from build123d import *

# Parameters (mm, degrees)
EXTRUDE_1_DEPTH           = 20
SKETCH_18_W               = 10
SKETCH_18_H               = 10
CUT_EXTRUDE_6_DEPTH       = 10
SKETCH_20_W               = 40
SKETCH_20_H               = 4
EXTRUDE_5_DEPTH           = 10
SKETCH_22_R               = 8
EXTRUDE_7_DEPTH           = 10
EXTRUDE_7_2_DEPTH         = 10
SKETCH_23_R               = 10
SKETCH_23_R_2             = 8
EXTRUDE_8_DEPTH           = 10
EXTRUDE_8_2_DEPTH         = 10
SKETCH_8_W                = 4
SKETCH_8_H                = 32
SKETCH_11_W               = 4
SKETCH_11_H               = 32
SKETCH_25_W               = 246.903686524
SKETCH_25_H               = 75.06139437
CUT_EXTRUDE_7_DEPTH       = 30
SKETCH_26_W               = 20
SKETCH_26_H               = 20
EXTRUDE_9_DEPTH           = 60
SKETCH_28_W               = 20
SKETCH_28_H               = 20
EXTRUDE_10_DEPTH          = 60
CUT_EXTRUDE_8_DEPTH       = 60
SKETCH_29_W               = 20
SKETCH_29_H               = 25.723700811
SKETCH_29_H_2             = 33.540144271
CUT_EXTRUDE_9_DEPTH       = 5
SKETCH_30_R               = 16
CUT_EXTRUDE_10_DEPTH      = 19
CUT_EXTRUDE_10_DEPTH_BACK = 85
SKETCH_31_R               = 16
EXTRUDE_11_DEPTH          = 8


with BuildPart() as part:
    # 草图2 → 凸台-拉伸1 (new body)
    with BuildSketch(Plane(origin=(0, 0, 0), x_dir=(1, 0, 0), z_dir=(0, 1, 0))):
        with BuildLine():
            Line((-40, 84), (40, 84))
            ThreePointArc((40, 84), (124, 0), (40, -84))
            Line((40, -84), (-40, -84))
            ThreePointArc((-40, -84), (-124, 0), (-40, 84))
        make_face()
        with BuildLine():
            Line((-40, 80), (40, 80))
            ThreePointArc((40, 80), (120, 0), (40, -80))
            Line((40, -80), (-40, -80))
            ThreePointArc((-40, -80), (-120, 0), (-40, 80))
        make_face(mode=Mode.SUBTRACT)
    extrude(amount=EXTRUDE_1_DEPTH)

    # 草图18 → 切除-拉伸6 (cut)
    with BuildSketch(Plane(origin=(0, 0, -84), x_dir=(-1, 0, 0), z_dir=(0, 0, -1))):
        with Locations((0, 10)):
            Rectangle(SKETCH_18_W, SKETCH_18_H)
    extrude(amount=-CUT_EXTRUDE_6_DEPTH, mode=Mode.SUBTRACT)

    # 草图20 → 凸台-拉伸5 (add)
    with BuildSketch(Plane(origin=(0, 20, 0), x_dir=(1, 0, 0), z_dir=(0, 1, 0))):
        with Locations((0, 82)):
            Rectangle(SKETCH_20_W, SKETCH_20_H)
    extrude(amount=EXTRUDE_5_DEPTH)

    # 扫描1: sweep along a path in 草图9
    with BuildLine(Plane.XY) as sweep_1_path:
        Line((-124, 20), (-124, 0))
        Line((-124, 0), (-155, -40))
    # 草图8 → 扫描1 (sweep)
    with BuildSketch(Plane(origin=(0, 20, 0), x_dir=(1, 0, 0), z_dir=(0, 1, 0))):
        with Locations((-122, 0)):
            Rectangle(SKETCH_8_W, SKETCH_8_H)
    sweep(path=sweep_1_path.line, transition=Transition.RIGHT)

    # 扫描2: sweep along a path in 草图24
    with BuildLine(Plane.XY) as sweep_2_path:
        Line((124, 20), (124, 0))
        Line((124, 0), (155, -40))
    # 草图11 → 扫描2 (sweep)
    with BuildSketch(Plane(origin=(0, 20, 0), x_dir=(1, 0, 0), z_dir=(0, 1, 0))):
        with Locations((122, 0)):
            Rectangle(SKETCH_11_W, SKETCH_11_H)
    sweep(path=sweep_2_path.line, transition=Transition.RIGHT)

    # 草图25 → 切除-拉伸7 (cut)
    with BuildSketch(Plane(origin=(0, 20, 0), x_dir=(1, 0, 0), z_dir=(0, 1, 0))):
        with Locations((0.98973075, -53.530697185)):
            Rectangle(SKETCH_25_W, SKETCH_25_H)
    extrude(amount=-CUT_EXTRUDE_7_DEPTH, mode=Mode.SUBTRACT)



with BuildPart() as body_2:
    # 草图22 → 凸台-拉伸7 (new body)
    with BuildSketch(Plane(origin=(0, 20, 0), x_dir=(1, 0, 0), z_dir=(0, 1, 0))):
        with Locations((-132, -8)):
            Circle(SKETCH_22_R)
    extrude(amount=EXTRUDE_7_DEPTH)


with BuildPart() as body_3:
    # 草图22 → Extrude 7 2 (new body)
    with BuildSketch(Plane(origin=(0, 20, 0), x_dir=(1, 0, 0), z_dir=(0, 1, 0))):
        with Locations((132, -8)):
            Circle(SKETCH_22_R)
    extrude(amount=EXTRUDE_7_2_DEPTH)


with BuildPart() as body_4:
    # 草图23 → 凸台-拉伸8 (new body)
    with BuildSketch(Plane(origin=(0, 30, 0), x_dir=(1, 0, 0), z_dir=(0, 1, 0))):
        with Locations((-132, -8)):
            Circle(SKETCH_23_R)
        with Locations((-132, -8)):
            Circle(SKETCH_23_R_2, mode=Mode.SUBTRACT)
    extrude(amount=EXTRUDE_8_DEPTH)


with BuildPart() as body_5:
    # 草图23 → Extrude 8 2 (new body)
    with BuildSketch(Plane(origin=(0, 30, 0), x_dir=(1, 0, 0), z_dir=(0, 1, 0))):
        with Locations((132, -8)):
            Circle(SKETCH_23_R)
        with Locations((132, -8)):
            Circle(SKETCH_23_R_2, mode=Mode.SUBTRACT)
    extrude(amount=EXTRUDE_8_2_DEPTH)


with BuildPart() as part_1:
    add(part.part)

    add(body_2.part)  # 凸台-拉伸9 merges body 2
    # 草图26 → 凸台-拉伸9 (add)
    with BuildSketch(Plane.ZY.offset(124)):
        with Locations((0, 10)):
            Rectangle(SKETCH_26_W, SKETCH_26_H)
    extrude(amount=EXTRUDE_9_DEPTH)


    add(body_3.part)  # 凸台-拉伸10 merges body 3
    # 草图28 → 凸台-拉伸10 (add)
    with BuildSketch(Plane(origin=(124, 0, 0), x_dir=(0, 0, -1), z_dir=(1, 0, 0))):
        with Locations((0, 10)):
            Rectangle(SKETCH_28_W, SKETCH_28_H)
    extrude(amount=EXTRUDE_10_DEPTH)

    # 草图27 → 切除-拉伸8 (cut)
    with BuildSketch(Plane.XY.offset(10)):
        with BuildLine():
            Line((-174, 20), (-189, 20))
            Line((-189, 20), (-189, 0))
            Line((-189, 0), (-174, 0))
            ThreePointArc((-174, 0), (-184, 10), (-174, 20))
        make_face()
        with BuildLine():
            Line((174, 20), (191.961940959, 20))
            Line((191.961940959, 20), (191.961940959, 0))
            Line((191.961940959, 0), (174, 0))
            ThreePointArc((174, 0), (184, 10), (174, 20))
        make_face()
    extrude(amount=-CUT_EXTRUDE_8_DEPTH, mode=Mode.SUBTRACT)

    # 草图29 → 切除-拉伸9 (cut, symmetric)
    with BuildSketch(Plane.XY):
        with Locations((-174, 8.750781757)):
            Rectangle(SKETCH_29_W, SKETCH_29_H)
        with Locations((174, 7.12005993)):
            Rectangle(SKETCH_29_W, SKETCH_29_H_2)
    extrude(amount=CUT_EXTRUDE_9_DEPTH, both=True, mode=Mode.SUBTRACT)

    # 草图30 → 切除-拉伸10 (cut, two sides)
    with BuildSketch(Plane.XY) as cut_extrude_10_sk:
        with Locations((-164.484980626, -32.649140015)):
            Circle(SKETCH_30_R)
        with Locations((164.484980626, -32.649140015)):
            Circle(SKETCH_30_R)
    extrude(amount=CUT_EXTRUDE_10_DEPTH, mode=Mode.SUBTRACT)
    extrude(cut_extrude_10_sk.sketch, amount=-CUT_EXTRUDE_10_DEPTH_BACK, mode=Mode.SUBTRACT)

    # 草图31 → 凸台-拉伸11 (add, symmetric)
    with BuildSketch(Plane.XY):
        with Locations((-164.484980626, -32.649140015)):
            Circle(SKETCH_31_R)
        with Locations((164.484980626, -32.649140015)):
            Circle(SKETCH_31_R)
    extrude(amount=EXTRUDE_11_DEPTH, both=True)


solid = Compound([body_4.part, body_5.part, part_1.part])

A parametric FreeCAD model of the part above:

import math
import FreeCAD as App
import Part
import Sketcher
Q = App.Units.Quantity

doc = App.newDocument("Part")
body = doc.addObject("PartDesign::Body", "Body")

sketch1 = doc.addObject("Sketcher::SketchObject", "Sketch")
body.addObject(sketch1)
sketch1.AttachmentSupport = (doc.XZ_Plane, [""])
sketch1.MapMode = "FlatFace"
sketch1.addGeometry(Part.LineSegment(App.Vector(40, -84, 0), App.Vector(-40, -84, 0)), False)
sketch1.addGeometry(Part.ArcOfCircle(Part.Circle(App.Vector(-40, 0, 0), App.Vector(0, 0, 1), 84), math.radians(90), math.radians(270)), False)
sketch1.addGeometry(Part.LineSegment(App.Vector(-40, 84, 0), App.Vector(40, 84, 0)), False)
sketch1.addGeometry(Part.ArcOfCircle(Part.Circle(App.Vector(40, 0, 0), App.Vector(0, 0, 1), 84), math.radians(-90), math.radians(90)), False)
sketch1.addGeometry(Part.LineSegment(App.Vector(-40, -80, 0), App.Vector(40, -80, 0)), False)
sketch1.addGeometry(Part.ArcOfCircle(Part.Circle(App.Vector(40, 0, 0), App.Vector(0, 0, 1), 80), math.radians(-90), math.radians(90)), False)
sketch1.addGeometry(Part.LineSegment(App.Vector(40, 80, 0), App.Vector(-40, 80, 0)), False)
sketch1.addGeometry(Part.ArcOfCircle(Part.Circle(App.Vector(-40, 0, 0), App.Vector(0, 0, 1), 80), math.radians(90), math.radians(270)), False)
sketch1.addConstraint(Sketcher.Constraint("Tangent", 0, 2, 1, 2))
sketch1.addConstraint(Sketcher.Constraint("Tangent", 1, 1, 2, 1))
sketch1.addConstraint(Sketcher.Constraint("Tangent", 2, 2, 3, 2))
sketch1.addConstraint(Sketcher.Constraint("Tangent", 3, 1, 0, 1))
sketch1.addConstraint(Sketcher.Constraint("Tangent", 4, 2, 5, 1))
sketch1.addConstraint(Sketcher.Constraint("Tangent", 5, 2, 6, 1))
sketch1.addConstraint(Sketcher.Constraint("Tangent", 6, 2, 7, 1))
sketch1.addConstraint(Sketcher.Constraint("Tangent", 7, 2, 4, 1))
sketch1.addConstraint(Sketcher.Constraint("Horizontal", 0))
sketch1.addConstraint(Sketcher.Constraint("Horizontal", 2))
sketch1.addConstraint(Sketcher.Constraint("Horizontal", 4))
sketch1.addConstraint(Sketcher.Constraint("Horizontal", 6))
sketch1.addConstraint(Sketcher.Constraint("Coincident", 5, 3, 3, 3))
sketch1.addConstraint(Sketcher.Constraint("Symmetric", 1, 3, 3, 3, -1, 1))
sketch1.addConstraint(Sketcher.Constraint("Vertical", 7, 3, 0, 2))
sketch1.addConstraint(Sketcher.Constraint("Radius", 1, Q("84 mm")))
sketch1.addConstraint(Sketcher.Constraint("Radius", 5, Q("80 mm")))
sketch1.addConstraint(Sketcher.Constraint("DistanceX", 0, 2, 0, 1, Q("80 mm")))
pad1 = doc.addObject("PartDesign::Pad", "Pad")
body.addObject(pad1)
pad1.Profile = sketch1
pad1.Length = 20
pad1.Reversed = True

sketch2 = doc.addObject("Sketcher::SketchObject", "Sketch001")
body.addObject(sketch2)
sketch2.AttachmentSupport = (doc.XY_Plane, [""])
sketch2.MapMode = "FlatFace"
sketch2.AttachmentOffset = App.Placement(App.Vector(0, 0, -84), App.Rotation())
sketch2.addGeometry(Part.LineSegment(App.Vector(5, 15, 0), App.Vector(5, 5, 0)), False)
sketch2.addGeometry(Part.LineSegment(App.Vector(5, 5, 0), App.Vector(-5, 5, 0)), False)
sketch2.addGeometry(Part.LineSegment(App.Vector(-5, 5, 0), App.Vector(-5, 15, 0)), False)
sketch2.addGeometry(Part.LineSegment(App.Vector(-5, 15, 0), App.Vector(5, 15, 0)), False)
sketch2.addConstraint(Sketcher.Constraint("Coincident", 0, 2, 1, 1))
sketch2.addConstraint(Sketcher.Constraint("Coincident", 1, 2, 2, 1))
sketch2.addConstraint(Sketcher.Constraint("Coincident", 2, 2, 3, 1))
sketch2.addConstraint(Sketcher.Constraint("Coincident", 3, 2, 0, 1))
sketch2.addConstraint(Sketcher.Constraint("Vertical", 0))
sketch2.addConstraint(Sketcher.Constraint("Horizontal", 1))
sketch2.addConstraint(Sketcher.Constraint("Vertical", 2))
sketch2.addConstraint(Sketcher.Constraint("Horizontal", 3))
sketch2.addConstraint(Sketcher.Constraint("Equal", 3, 0))
sketch2.addConstraint(Sketcher.Constraint("DistanceX", 1, 2, 1, 1, Q("10 mm")))
sketch2.addConstraint(Sketcher.Constraint("DistanceX", -1, 1, 0, 2, Q("5 mm")))
sketch2.addConstraint(Sketcher.Constraint("DistanceY", -1, 1, 0, 2, Q("5 mm")))
pocket1 = doc.addObject("PartDesign::Pocket", "Pocket")
body.addObject(pocket1)
pocket1.Profile = sketch2
pocket1.Length = 10
pocket1.Reversed = True

sketch3 = doc.addObject("Sketcher::SketchObject", "Sketch002")
body.addObject(sketch3)
sketch3.AttachmentSupport = (doc.XZ_Plane, [""])
sketch3.MapMode = "FlatFace"
sketch3.AttachmentOffset = App.Placement(App.Vector(0, 0, -20), App.Rotation())
sketch3.addGeometry(Part.LineSegment(App.Vector(-20, -84, 0), App.Vector(-20, -80, 0)), False)
sketch3.addGeometry(Part.LineSegment(App.Vector(-20, -80, 0), App.Vector(20, -80, 0)), False)
sketch3.addGeometry(Part.LineSegment(App.Vector(20, -80, 0), App.Vector(20, -84, 0)), False)
sketch3.addGeometry(Part.LineSegment(App.Vector(20, -84, 0), App.Vector(-20, -84, 0)), False)
sketch3.addConstraint(Sketcher.Constraint("Coincident", 0, 2, 1, 1))
sketch3.addConstraint(Sketcher.Constraint("Coincident", 1, 2, 2, 1))
sketch3.addConstraint(Sketcher.Constraint("Coincident", 2, 2, 3, 1))
sketch3.addConstraint(Sketcher.Constraint("Coincident", 3, 2, 0, 1))
sketch3.addConstraint(Sketcher.Constraint("Vertical", 0))
sketch3.addConstraint(Sketcher.Constraint("Horizontal", 1))
sketch3.addConstraint(Sketcher.Constraint("Vertical", 2))
sketch3.addConstraint(Sketcher.Constraint("Horizontal", 3))
sketch3.addConstraint(Sketcher.Constraint("DistanceX", 1, 1, 1, 2, Q("40 mm")))
sketch3.addConstraint(Sketcher.Constraint("DistanceY", 0, 1, 0, 2, Q("4 mm")))
sketch3.addConstraint(Sketcher.Constraint("DistanceX", 0, 2, -1, 1, Q("20 mm")))
sketch3.addConstraint(Sketcher.Constraint("DistanceY", 0, 2, -1, 1, Q("80 mm")))
pad2 = doc.addObject("PartDesign::Pad", "Pad001")
body.addObject(pad2)
pad2.Profile = sketch3
pad2.Length = 10
pad2.Reversed = True

sketch4 = doc.addObject("Sketcher::SketchObject", "Sketch003")
body.addObject(sketch4)
sketch4.AttachmentSupport = (doc.XZ_Plane, [""])
sketch4.MapMode = "FlatFace"
sketch4.AttachmentOffset = App.Placement(App.Vector(0, 0, -20), App.Rotation())
sketch4.addGeometry(Part.LineSegment(App.Vector(-124, -16, 0), App.Vector(-124, 16, 0)), False)
sketch4.addGeometry(Part.LineSegment(App.Vector(-124, 16, 0), App.Vector(-120, 16, 0)), False)
sketch4.addGeometry(Part.LineSegment(App.Vector(-120, 16, 0), App.Vector(-120, -16, 0)), False)
sketch4.addGeometry(Part.LineSegment(App.Vector(-120, -16, 0), App.Vector(-124, -16, 0)), False)
sketch4.addConstraint(Sketcher.Constraint("Coincident", 0, 2, 1, 1))
sketch4.addConstraint(Sketcher.Constraint("Coincident", 1, 2, 2, 1))
sketch4.addConstraint(Sketcher.Constraint("Coincident", 2, 2, 3, 1))
sketch4.addConstraint(Sketcher.Constraint("Coincident", 3, 2, 0, 1))
sketch4.addConstraint(Sketcher.Constraint("Vertical", 0))
sketch4.addConstraint(Sketcher.Constraint("Horizontal", 1))
sketch4.addConstraint(Sketcher.Constraint("Vertical", 2))
sketch4.addConstraint(Sketcher.Constraint("Horizontal", 3))
sketch4.addConstraint(Sketcher.Constraint("DistanceX", 1, 1, 1, 2, Q("4 mm")))
sketch4.addConstraint(Sketcher.Constraint("DistanceY", 0, 1, 0, 2, Q("32 mm")))
sketch4.addConstraint(Sketcher.Constraint("DistanceX", 0, 2, -1, 1, Q("124 mm")))
sketch4.addConstraint(Sketcher.Constraint("DistanceY", -1, 1, 0, 2, Q("16 mm")))

sketch5 = doc.addObject("Sketcher::SketchObject", "Sketch004")
body.addObject(sketch5)
sketch5.AttachmentSupport = (doc.XY_Plane, [""])
sketch5.MapMode = "FlatFace"
sketch5.addGeometry(Part.LineSegment(App.Vector(-124, 20, 0), App.Vector(-124, 0, 0)), False)
sketch5.addGeometry(Part.LineSegment(App.Vector(-124, 0, 0), App.Vector(-155, -40, 0)), False)
sketch5.addConstraint(Sketcher.Constraint("Coincident", 0, 2, 1, 1))
sketch5.addConstraint(Sketcher.Constraint("Vertical", 0))
sketch5.addConstraint(Sketcher.Constraint("PointOnObject", 0, 2, -1))
sketch5.addConstraint(Sketcher.Constraint("DistanceY", 0, 2, 0, 1, Q("20 mm")))
sketch5.addConstraint(Sketcher.Constraint("DistanceX", 0, 1, -1, 1, Q("124 mm")))
sketch5.addConstraint(Sketcher.Constraint("DistanceX", 1, 2, -1, 1, Q("155 mm")))
sketch5.addConstraint(Sketcher.Constraint("DistanceY", 1, 2, -1, 1, Q("40 mm")))
doc.recompute()

additivepipe = doc.addObject("PartDesign::AdditivePipe", "AdditivePipe")
body.addObject(additivepipe)
additivepipe.Profile = sketch4
additivepipe.Spine = (sketch5, ["Edge1", "Edge2"])
additivepipe.Transition = "Right corner"

sketch6 = doc.addObject("Sketcher::SketchObject", "Sketch005")
body.addObject(sketch6)
sketch6.AttachmentSupport = (doc.XZ_Plane, [""])
sketch6.MapMode = "FlatFace"
sketch6.AttachmentOffset = App.Placement(App.Vector(0, 0, -20), App.Rotation())
sketch6.addGeometry(Part.LineSegment(App.Vector(120, -16, 0), App.Vector(120, 16, 0)), False)
sketch6.addGeometry(Part.LineSegment(App.Vector(120, 16, 0), App.Vector(124, 16, 0)), False)
sketch6.addGeometry(Part.LineSegment(App.Vector(124, 16, 0), App.Vector(124, -16, 0)), False)
sketch6.addGeometry(Part.LineSegment(App.Vector(124, -16, 0), App.Vector(120, -16, 0)), False)
sketch6.addConstraint(Sketcher.Constraint("Coincident", 0, 2, 1, 1))
sketch6.addConstraint(Sketcher.Constraint("Coincident", 1, 2, 2, 1))
sketch6.addConstraint(Sketcher.Constraint("Coincident", 2, 2, 3, 1))
sketch6.addConstraint(Sketcher.Constraint("Coincident", 3, 2, 0, 1))
sketch6.addConstraint(Sketcher.Constraint("Vertical", 0))
sketch6.addConstraint(Sketcher.Constraint("Horizontal", 1))
sketch6.addConstraint(Sketcher.Constraint("Vertical", 2))
sketch6.addConstraint(Sketcher.Constraint("Horizontal", 3))
sketch6.addConstraint(Sketcher.Constraint("DistanceX", 1, 1, 1, 2, Q("4 mm")))
sketch6.addConstraint(Sketcher.Constraint("DistanceY", 0, 1, 0, 2, Q("32 mm")))
sketch6.addConstraint(Sketcher.Constraint("DistanceX", -1, 1, 0, 2, Q("120 mm")))
sketch6.addConstraint(Sketcher.Constraint("DistanceY", -1, 1, 0, 2, Q("16 mm")))

sketch7 = doc.addObject("Sketcher::SketchObject", "Sketch006")
body.addObject(sketch7)
sketch7.AttachmentSupport = (doc.XY_Plane, [""])
sketch7.MapMode = "FlatFace"
sketch7.addGeometry(Part.LineSegment(App.Vector(124, 20, 0), App.Vector(124, 0, 0)), False)
sketch7.addGeometry(Part.LineSegment(App.Vector(124, 0, 0), App.Vector(155, -40, 0)), False)
sketch7.addConstraint(Sketcher.Constraint("Coincident", 0, 2, 1, 1))
sketch7.addConstraint(Sketcher.Constraint("Vertical", 0))
sketch7.addConstraint(Sketcher.Constraint("PointOnObject", 0, 2, -1))
sketch7.addConstraint(Sketcher.Constraint("DistanceY", 0, 2, 0, 1, Q("20 mm")))
sketch7.addConstraint(Sketcher.Constraint("DistanceX", -1, 1, 0, 1, Q("124 mm")))
sketch7.addConstraint(Sketcher.Constraint("DistanceX", -1, 1, 1, 2, Q("155 mm")))
sketch7.addConstraint(Sketcher.Constraint("DistanceY", 1, 2, -1, 1, Q("40 mm")))
doc.recompute()

additivepipe2 = doc.addObject("PartDesign::AdditivePipe", "AdditivePipe001")
body.addObject(additivepipe2)
additivepipe2.Profile = sketch6
additivepipe2.Spine = (sketch7, ["Edge1", "Edge2"])
additivepipe2.Transition = "Right corner"

sketch8 = doc.addObject("Sketcher::SketchObject", "Sketch007")
body.addObject(sketch8)
sketch8.AttachmentSupport = (doc.XZ_Plane, [""])
sketch8.MapMode = "FlatFace"
sketch8.AttachmentOffset = App.Placement(App.Vector(0, 0, -20), App.Rotation())
sketch8.addGeometry(Part.LineSegment(App.Vector(-122, 16, 0), App.Vector(-122, 91, 0)), False)
sketch8.addGeometry(Part.LineSegment(App.Vector(-122, 91, 0), App.Vector(124, 91, 0)), False)
sketch8.addGeometry(Part.LineSegment(App.Vector(124, 91, 0), App.Vector(124, 16, 0)), False)
sketch8.addGeometry(Part.LineSegment(App.Vector(124, 16, 0), App.Vector(-122, 16, 0)), False)
sketch8.addConstraint(Sketcher.Constraint("Coincident", 0, 2, 1, 1))
sketch8.addConstraint(Sketcher.Constraint("Coincident", 1, 2, 2, 1))
sketch8.addConstraint(Sketcher.Constraint("Coincident", 2, 2, 3, 1))
sketch8.addConstraint(Sketcher.Constraint("Coincident", 3, 2, 0, 1))
sketch8.addConstraint(Sketcher.Constraint("Vertical", 0))
sketch8.addConstraint(Sketcher.Constraint("Horizontal", 1))
sketch8.addConstraint(Sketcher.Constraint("Vertical", 2))
sketch8.addConstraint(Sketcher.Constraint("Horizontal", 3))
sketch8.addConstraint(Sketcher.Constraint("DistanceY", -1, 1, 2, 2, Q("16 mm")))
sketch8.addConstraint(Sketcher.Constraint("DistanceX", 1, 1, 1, 2, Q("246.903687 mm")))
sketch8.addConstraint(Sketcher.Constraint("DistanceY", 0, 1, 0, 2, Q("75.061394 mm")))
sketch8.addConstraint(Sketcher.Constraint("DistanceX", 0, 2, -1, 1, Q("122.462113 mm")))
pocket2 = doc.addObject("PartDesign::Pocket", "Pocket001")
body.addObject(pocket2)
pocket2.Profile = sketch8
pocket2.Length = 30
pocket2.Reversed = True
body2 = doc.addObject("PartDesign::Body", "Body001")

sketch9 = doc.addObject("Sketcher::SketchObject", "Sketch008")
body2.addObject(sketch9)
sketch9.AttachmentSupport = (doc.getObject("XZ_Plane001"), [""])
sketch9.MapMode = "FlatFace"
sketch9.AttachmentOffset = App.Placement(App.Vector(0, 0, -20), App.Rotation())
sketch9.addGeometry(Part.Circle(App.Vector(-132, 8, 0), App.Vector(0, 0, 1), 8), False)
sketch9.addConstraint(Sketcher.Constraint("Diameter", 0, Q("16 mm")))
sketch9.addConstraint(Sketcher.Constraint("DistanceX", 0, 3, -1, 1, Q("132 mm")))
sketch9.addConstraint(Sketcher.Constraint("DistanceY", -1, 1, 0, 3, Q("8 mm")))
pad3 = doc.addObject("PartDesign::Pad", "Pad002")
body2.addObject(pad3)
pad3.Profile = sketch9
pad3.Length = 10
pad3.Reversed = True
body3 = doc.addObject("PartDesign::Body", "Body002")

sketch10 = doc.addObject("Sketcher::SketchObject", "Sketch009")
body3.addObject(sketch10)
sketch10.AttachmentSupport = (doc.getObject("XZ_Plane002"), [""])
sketch10.MapMode = "FlatFace"
sketch10.AttachmentOffset = App.Placement(App.Vector(0, 0, -20), App.Rotation())
sketch10.addGeometry(Part.Circle(App.Vector(132, 8, 0), App.Vector(0, 0, 1), 8), False)
sketch10.addConstraint(Sketcher.Constraint("Diameter", 0, Q("16 mm")))
sketch10.addConstraint(Sketcher.Constraint("DistanceX", -1, 1, 0, 3, Q("132 mm")))
sketch10.addConstraint(Sketcher.Constraint("DistanceY", -1, 1, 0, 3, Q("8 mm")))
pad4 = doc.addObject("PartDesign::Pad", "Pad003")
body3.addObject(pad4)
pad4.Profile = sketch10
pad4.Length = 10
pad4.Reversed = True
body4 = doc.addObject("PartDesign::Body", "Body003")

sketch11 = doc.addObject("Sketcher::SketchObject", "Sketch010")
body4.addObject(sketch11)
sketch11.AttachmentSupport = (doc.getObject("XZ_Plane003"), [""])
sketch11.MapMode = "FlatFace"
sketch11.AttachmentOffset = App.Placement(App.Vector(0, 0, -30), App.Rotation())
sketch11.addGeometry(Part.Circle(App.Vector(-132, 8, 0), App.Vector(0, 0, 1), 10), False)
sketch11.addGeometry(Part.Circle(App.Vector(-132, 8, 0), App.Vector(0, 0, 1), 8), False)
sketch11.addConstraint(Sketcher.Constraint("Coincident", 1, 3, 0, 3))
sketch11.addConstraint(Sketcher.Constraint("Diameter", 0, Q("20 mm")))
sketch11.addConstraint(Sketcher.Constraint("Diameter", 1, Q("16 mm")))
sketch11.addConstraint(Sketcher.Constraint("DistanceX", 0, 3, -1, 1, Q("132 mm")))
sketch11.addConstraint(Sketcher.Constraint("DistanceY", -1, 1, 0, 3, Q("8 mm")))
pad5 = doc.addObject("PartDesign::Pad", "Pad004")
body4.addObject(pad5)
pad5.Profile = sketch11
pad5.Length = 10
pad5.Reversed = True
body5 = doc.addObject("PartDesign::Body", "Body004")

sketch12 = doc.addObject("Sketcher::SketchObject", "Sketch011")
body5.addObject(sketch12)
sketch12.AttachmentSupport = (doc.getObject("XZ_Plane004"), [""])
sketch12.MapMode = "FlatFace"
sketch12.AttachmentOffset = App.Placement(App.Vector(0, 0, -30), App.Rotation())
sketch12.addGeometry(Part.Circle(App.Vector(132, 8, 0), App.Vector(0, 0, 1), 10), False)
sketch12.addGeometry(Part.Circle(App.Vector(132, 8, 0), App.Vector(0, 0, 1), 8), False)
sketch12.addConstraint(Sketcher.Constraint("Coincident", 1, 3, 0, 3))
sketch12.addConstraint(Sketcher.Constraint("Diameter", 0, Q("20 mm")))
sketch12.addConstraint(Sketcher.Constraint("Diameter", 1, Q("16 mm")))
sketch12.addConstraint(Sketcher.Constraint("DistanceX", -1, 1, 0, 3, Q("132 mm")))
sketch12.addConstraint(Sketcher.Constraint("DistanceY", -1, 1, 0, 3, Q("8 mm")))
pad6 = doc.addObject("PartDesign::Pad", "Pad005")
body5.addObject(pad6)
pad6.Profile = sketch12
pad6.Length = 10
pad6.Reversed = True
body.AllowCompound = True
doc.recompute()

boolean = doc.addObject("PartDesign::Boolean", "Boolean")
body.addObject(boolean)
boolean.Type = "Fuse"
boolean.addObjects([body2])

sketch13 = doc.addObject("Sketcher::SketchObject", "Sketch012")
body.addObject(sketch13)
sketch13.AttachmentSupport = (doc.YZ_Plane, [""])
sketch13.MapMode = "FlatFace"
sketch13.AttachmentOffset = App.Placement(App.Vector(0, 0, -124), App.Rotation())
sketch13.addGeometry(Part.LineSegment(App.Vector(20, -10, 0), App.Vector(0, -10, 0)), False)
sketch13.addGeometry(Part.LineSegment(App.Vector(0, -10, 0), App.Vector(0, 10, 0)), False)
sketch13.addGeometry(Part.LineSegment(App.Vector(0, 10, 0), App.Vector(20, 10, 0)), False)
sketch13.addGeometry(Part.LineSegment(App.Vector(20, 10, 0), App.Vector(20, -10, 0)), False)
sketch13.addConstraint(Sketcher.Constraint("Coincident", 0, 2, 1, 1))
sketch13.addConstraint(Sketcher.Constraint("Coincident", 1, 2, 2, 1))
sketch13.addConstraint(Sketcher.Constraint("Coincident", 2, 2, 3, 1))
sketch13.addConstraint(Sketcher.Constraint("Coincident", 3, 2, 0, 1))
sketch13.addConstraint(Sketcher.Constraint("Horizontal", 0))
sketch13.addConstraint(Sketcher.Constraint("Vertical", 1))
sketch13.addConstraint(Sketcher.Constraint("Horizontal", 2))
sketch13.addConstraint(Sketcher.Constraint("Vertical", 3))
sketch13.addConstraint(Sketcher.Constraint("Symmetric", 0, 2, 1, 2, -1, 1))
sketch13.addConstraint(Sketcher.Constraint("Equal", 2, 1))
sketch13.addConstraint(Sketcher.Constraint("DistanceX", 0, 2, 0, 1, Q("20 mm")))
pad7 = doc.addObject("PartDesign::Pad", "Pad006")
body.addObject(pad7)
pad7.Profile = sketch13
pad7.Length = 60
pad7.Reversed = True
doc.recompute()

boolean2 = doc.addObject("PartDesign::Boolean", "Boolean001")
body.addObject(boolean2)
boolean2.Type = "Fuse"
boolean2.addObjects([body3])

sketch14 = doc.addObject("Sketcher::SketchObject", "Sketch013")
body.addObject(sketch14)
sketch14.AttachmentSupport = (doc.YZ_Plane, [""])
sketch14.MapMode = "FlatFace"
sketch14.AttachmentOffset = App.Placement(App.Vector(0, 0, 124), App.Rotation())
sketch14.addGeometry(Part.LineSegment(App.Vector(20, 10, 0), App.Vector(0, 10, 0)), False)
sketch14.addGeometry(Part.LineSegment(App.Vector(0, 10, 0), App.Vector(0, -10, 0)), False)
sketch14.addGeometry(Part.LineSegment(App.Vector(0, -10, 0), App.Vector(20, -10, 0)), False)
sketch14.addGeometry(Part.LineSegment(App.Vector(20, -10, 0), App.Vector(20, 10, 0)), False)
sketch14.addConstraint(Sketcher.Constraint("Coincident", 0, 2, 1, 1))
sketch14.addConstraint(Sketcher.Constraint("Coincident", 1, 2, 2, 1))
sketch14.addConstraint(Sketcher.Constraint("Coincident", 2, 2, 3, 1))
sketch14.addConstraint(Sketcher.Constraint("Coincident", 3, 2, 0, 1))
sketch14.addConstraint(Sketcher.Constraint("Horizontal", 0))
sketch14.addConstraint(Sketcher.Constraint("Vertical", 1))
sketch14.addConstraint(Sketcher.Constraint("Horizontal", 2))
sketch14.addConstraint(Sketcher.Constraint("Vertical", 3))
sketch14.addConstraint(Sketcher.Constraint("Symmetric", 0, 2, 1, 2, -1, 1))
sketch14.addConstraint(Sketcher.Constraint("Equal", 2, 1))
sketch14.addConstraint(Sketcher.Constraint("DistanceX", 0, 2, 0, 1, Q("20 mm")))
pad8 = doc.addObject("PartDesign::Pad", "Pad007")
body.addObject(pad8)
pad8.Profile = sketch14
pad8.Length = 60

sketch15 = doc.addObject("Sketcher::SketchObject", "Sketch014")
body.addObject(sketch15)
sketch15.AttachmentSupport = (doc.XY_Plane, [""])
sketch15.MapMode = "FlatFace"
sketch15.AttachmentOffset = App.Placement(App.Vector(0, 0, 10), App.Rotation())
sketch15.addGeometry(Part.LineSegment(App.Vector(-174, 20, 0), App.Vector(-189, 20, 0)), False)
sketch15.addGeometry(Part.LineSegment(App.Vector(-189, 20, 0), App.Vector(-189, 0, 0)), False)
sketch15.addGeometry(Part.LineSegment(App.Vector(-189, 0, 0), App.Vector(-174, 0, 0)), False)
sketch15.addGeometry(Part.ArcOfCircle(Part.Circle(App.Vector(-174, 10, 0), App.Vector(0, 0, 1), 10), math.radians(90), math.radians(270)), False)
sketch15.addGeometry(Part.LineSegment(App.Vector(192, 20, 0), App.Vector(174, 20, 0)), False)
sketch15.addGeometry(Part.ArcOfCircle(Part.Circle(App.Vector(174, 10, 0), App.Vector(0, 0, 1), 10), math.radians(-90), math.radians(90)), False)
sketch15.addGeometry(Part.LineSegment(App.Vector(174, 0, 0), App.Vector(192, 0, 0)), False)
sketch15.addGeometry(Part.LineSegment(App.Vector(192, 0, 0), App.Vector(192, 20, 0)), False)
sketch15.addConstraint(Sketcher.Constraint("Coincident", 0, 2, 1, 1))
sketch15.addConstraint(Sketcher.Constraint("Coincident", 1, 2, 2, 1))
sketch15.addConstraint(Sketcher.Constraint("Tangent", 2, 2, 3, 2))
sketch15.addConstraint(Sketcher.Constraint("Tangent", 3, 1, 0, 1))
sketch15.addConstraint(Sketcher.Constraint("Tangent", 4, 2, 5, 2))
sketch15.addConstraint(Sketcher.Constraint("Tangent", 5, 1, 6, 1))
sketch15.addConstraint(Sketcher.Constraint("Coincident", 6, 2, 7, 1))
sketch15.addConstraint(Sketcher.Constraint("Coincident", 7, 2, 4, 1))
sketch15.addConstraint(Sketcher.Constraint("Horizontal", 0))
sketch15.addConstraint(Sketcher.Constraint("Vertical", 1))
sketch15.addConstraint(Sketcher.Constraint("Horizontal", 2))
sketch15.addConstraint(Sketcher.Constraint("Horizontal", 4))
sketch15.addConstraint(Sketcher.Constraint("Horizontal", 6))
sketch15.addConstraint(Sketcher.Constraint("Vertical", 7))
sketch15.addConstraint(Sketcher.Constraint("Equal", 3, 5))
sketch15.addConstraint(Sketcher.Constraint("Symmetric", 2, 2, 5, 1, -1, 1))
sketch15.addConstraint(Sketcher.Constraint("PointOnObject", 1, 2, -1))
sketch15.addConstraint(Sketcher.Constraint("Radius", 3, Q("10 mm")))
sketch15.addConstraint(Sketcher.Constraint("DistanceX", 0, 2, 0, 1, Q("15 mm")))
sketch15.addConstraint(Sketcher.Constraint("DistanceX", 3, 3, -1, 1, Q("174 mm")))
sketch15.addConstraint(Sketcher.Constraint("DistanceX", 4, 2, 4, 1, Q("17.961941 mm")))
pocket3 = doc.addObject("PartDesign::Pocket", "Pocket002")
body.addObject(pocket3)
pocket3.Profile = sketch15
pocket3.Length = 60

sketch16 = doc.addObject("Sketcher::SketchObject", "Sketch015")
body.addObject(sketch16)
sketch16.AttachmentSupport = (doc.XY_Plane, [""])
sketch16.MapMode = "FlatFace"
sketch16.addGeometry(Part.LineSegment(App.Vector(-184, 22, 0), App.Vector(-184, -4, 0)), False)
sketch16.addGeometry(Part.LineSegment(App.Vector(-184, -4, 0), App.Vector(-164, -4, 0)), False)
sketch16.addGeometry(Part.LineSegment(App.Vector(-164, -4, 0), App.Vector(-164, 22, 0)), False)
sketch16.addGeometry(Part.LineSegment(App.Vector(-164, 22, 0), App.Vector(-184, 22, 0)), False)
sketch16.addGeometry(Part.LineSegment(App.Vector(164, 24, 0), App.Vector(164, -10, 0)), False)
sketch16.addGeometry(Part.LineSegment(App.Vector(164, -10, 0), App.Vector(184, -10, 0)), False)
sketch16.addGeometry(Part.LineSegment(App.Vector(184, -10, 0), App.Vector(184, 24, 0)), False)
sketch16.addGeometry(Part.LineSegment(App.Vector(184, 24, 0), App.Vector(164, 24, 0)), False)
sketch16.addConstraint(Sketcher.Constraint("Coincident", 0, 2, 1, 1))
sketch16.addConstraint(Sketcher.Constraint("Coincident", 1, 2, 2, 1))
sketch16.addConstraint(Sketcher.Constraint("Coincident", 2, 2, 3, 1))
sketch16.addConstraint(Sketcher.Constraint("Coincident", 3, 2, 0, 1))
sketch16.addConstraint(Sketcher.Constraint("Coincident", 4, 2, 5, 1))
sketch16.addConstraint(Sketcher.Constraint("Coincident", 5, 2, 6, 1))
sketch16.addConstraint(Sketcher.Constraint("Coincident", 6, 2, 7, 1))
sketch16.addConstraint(Sketcher.Constraint("Coincident", 7, 2, 4, 1))
sketch16.addConstraint(Sketcher.Constraint("Vertical", 0))
sketch16.addConstraint(Sketcher.Constraint("Horizontal", 1))
sketch16.addConstraint(Sketcher.Constraint("Vertical", 2))
sketch16.addConstraint(Sketcher.Constraint("Horizontal", 3))
sketch16.addConstraint(Sketcher.Constraint("Vertical", 4))
sketch16.addConstraint(Sketcher.Constraint("Horizontal", 5))
sketch16.addConstraint(Sketcher.Constraint("Vertical", 6))
sketch16.addConstraint(Sketcher.Constraint("Horizontal", 7))
sketch16.addConstraint(Sketcher.Constraint("Equal", 3, 5))
sketch16.addConstraint(Sketcher.Constraint("DistanceX", 1, 1, 1, 2, Q("20 mm")))
sketch16.addConstraint(Sketcher.Constraint("DistanceX", 0, 2, -1, 1, Q("184 mm")))
sketch16.addConstraint(Sketcher.Constraint("DistanceX", -1, 1, 4, 2, Q("164 mm")))
sketch16.addConstraint(Sketcher.Constraint("DistanceY", 0, 2, 0, 1, Q("25.723701 mm")))
sketch16.addConstraint(Sketcher.Constraint("DistanceY", 2, 2, 6, 2, Q("2.2775 mm")))
sketch16.addConstraint(Sketcher.Constraint("DistanceY", 4, 2, 4, 1, Q("33.540144 mm")))
sketch16.addConstraint(Sketcher.Constraint("DistanceY", 0, 2, -1, 1, Q("4.111069 mm")))
pocket4 = doc.addObject("PartDesign::Pocket", "Pocket003")
body.addObject(pocket4)
pocket4.Profile = sketch16
pocket4.Length = 10
pocket4.Midplane = True

sketch17 = doc.addObject("Sketcher::SketchObject", "Sketch016")
body.addObject(sketch17)
sketch17.AttachmentSupport = (doc.XY_Plane, [""])
sketch17.MapMode = "FlatFace"
sketch17.addGeometry(Part.Circle(App.Vector(-164, -33, 0), App.Vector(0, 0, 1), 16), False)
sketch17.addGeometry(Part.Circle(App.Vector(164, -33, 0), App.Vector(0, 0, 1), 16), False)
sketch17.addConstraint(Sketcher.Constraint("Equal", 0, 1))
sketch17.addConstraint(Sketcher.Constraint("Symmetric", 0, 3, 1, 3, -2))
sketch17.addConstraint(Sketcher.Constraint("Diameter", 0, Q("32 mm")))
sketch17.addConstraint(Sketcher.Constraint("DistanceX", 0, 3, -1, 1, Q("164.484981 mm")))
sketch17.addConstraint(Sketcher.Constraint("DistanceY", 0, 3, -1, 1, Q("32.64914 mm")))
pocket5 = doc.addObject("PartDesign::Pocket", "Pocket004")
body.addObject(pocket5)
pocket5.Profile = sketch17
pocket5.Type = "ThroughAll"
pocket5.Midplane = True

sketch18 = doc.addObject("Sketcher::SketchObject", "Sketch017")
body.addObject(sketch18)
sketch18.AttachmentSupport = (doc.XY_Plane, [""])
sketch18.MapMode = "FlatFace"
sketch18.addGeometry(Part.Circle(App.Vector(-164, -33, 0), App.Vector(0, 0, 1), 16), False)
sketch18.addGeometry(Part.Circle(App.Vector(164, -33, 0), App.Vector(0, 0, 1), 16), False)
sketch18.addConstraint(Sketcher.Constraint("Equal", 0, 1))
sketch18.addConstraint(Sketcher.Constraint("Symmetric", 0, 3, 1, 3, -2))
sketch18.addConstraint(Sketcher.Constraint("Diameter", 0, Q("32 mm")))
sketch18.addConstraint(Sketcher.Constraint("DistanceX", 0, 3, -1, 1, Q("164.484981 mm")))
sketch18.addConstraint(Sketcher.Constraint("DistanceY", 0, 3, -1, 1, Q("32.64914 mm")))
pad9 = doc.addObject("PartDesign::Pad", "Pad008")
body.addObject(pad9)
pad9.Profile = sketch18
pad9.Length = 16
pad9.Midplane = True

doc.recompute()
